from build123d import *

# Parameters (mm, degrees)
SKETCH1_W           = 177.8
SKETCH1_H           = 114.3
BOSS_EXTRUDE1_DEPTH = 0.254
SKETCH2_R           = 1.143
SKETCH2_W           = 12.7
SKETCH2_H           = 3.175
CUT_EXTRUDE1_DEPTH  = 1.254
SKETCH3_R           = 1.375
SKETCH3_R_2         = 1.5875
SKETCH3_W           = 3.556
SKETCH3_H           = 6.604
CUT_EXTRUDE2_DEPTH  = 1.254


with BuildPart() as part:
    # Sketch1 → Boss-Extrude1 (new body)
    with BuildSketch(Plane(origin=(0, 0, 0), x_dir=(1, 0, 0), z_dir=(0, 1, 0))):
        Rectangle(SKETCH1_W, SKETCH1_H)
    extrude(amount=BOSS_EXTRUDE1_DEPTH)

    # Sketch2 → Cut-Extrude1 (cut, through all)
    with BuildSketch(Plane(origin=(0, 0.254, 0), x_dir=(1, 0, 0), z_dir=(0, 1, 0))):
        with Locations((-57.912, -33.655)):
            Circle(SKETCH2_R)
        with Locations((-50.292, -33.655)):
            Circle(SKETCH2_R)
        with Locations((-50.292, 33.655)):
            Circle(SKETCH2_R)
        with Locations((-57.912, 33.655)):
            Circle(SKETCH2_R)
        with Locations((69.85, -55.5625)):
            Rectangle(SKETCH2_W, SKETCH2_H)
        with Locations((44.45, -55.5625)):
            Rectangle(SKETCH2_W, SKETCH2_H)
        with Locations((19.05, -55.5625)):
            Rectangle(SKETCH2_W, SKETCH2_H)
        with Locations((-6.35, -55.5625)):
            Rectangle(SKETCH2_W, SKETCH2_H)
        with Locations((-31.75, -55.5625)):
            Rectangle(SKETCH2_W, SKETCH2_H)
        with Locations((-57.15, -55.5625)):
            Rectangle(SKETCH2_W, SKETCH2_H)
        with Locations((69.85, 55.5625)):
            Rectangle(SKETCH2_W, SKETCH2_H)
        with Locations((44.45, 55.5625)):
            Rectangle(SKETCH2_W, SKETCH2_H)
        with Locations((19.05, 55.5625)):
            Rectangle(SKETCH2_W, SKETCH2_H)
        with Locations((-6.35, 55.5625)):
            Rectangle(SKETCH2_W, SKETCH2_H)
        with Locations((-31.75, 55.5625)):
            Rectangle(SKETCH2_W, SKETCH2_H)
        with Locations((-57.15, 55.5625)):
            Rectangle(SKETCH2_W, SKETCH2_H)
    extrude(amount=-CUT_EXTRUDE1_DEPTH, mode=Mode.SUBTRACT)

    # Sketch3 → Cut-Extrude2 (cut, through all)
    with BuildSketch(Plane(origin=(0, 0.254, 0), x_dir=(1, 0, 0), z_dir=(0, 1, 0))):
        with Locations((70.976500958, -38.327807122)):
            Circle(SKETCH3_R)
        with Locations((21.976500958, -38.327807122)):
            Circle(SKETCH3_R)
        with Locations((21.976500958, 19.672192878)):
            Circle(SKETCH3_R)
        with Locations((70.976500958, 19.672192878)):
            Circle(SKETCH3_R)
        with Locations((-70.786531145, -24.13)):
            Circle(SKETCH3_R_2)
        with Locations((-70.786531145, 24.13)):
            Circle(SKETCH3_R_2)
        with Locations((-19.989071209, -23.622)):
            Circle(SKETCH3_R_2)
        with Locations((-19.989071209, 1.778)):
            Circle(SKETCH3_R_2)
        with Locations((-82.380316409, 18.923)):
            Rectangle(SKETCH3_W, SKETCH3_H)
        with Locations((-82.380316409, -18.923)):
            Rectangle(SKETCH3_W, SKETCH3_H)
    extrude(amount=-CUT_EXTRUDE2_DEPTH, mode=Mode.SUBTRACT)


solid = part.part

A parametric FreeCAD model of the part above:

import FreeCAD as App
import Part
import Sketcher

V = App.Vector
Q = App.Units.Quantity


def add_polygon(sketch, points):
    """Adds a closed chain of lines whose ends are joined by coincident constraints."""
    first, n = sketch.GeometryCount, len(points)
    for a, b in zip(points, points[1:] + points[:1]):
        sketch.addGeometry(Part.LineSegment(App.Vector(*a, 0), App.Vector(*b, 0)), False)
    for i in range(n):
        sketch.addConstraint(Sketcher.Constraint("Coincident", first + i, 2, first + (i + 1) % n, 1))

doc = App.newDocument("Part")
body = doc.addObject("PartDesign::Body", "Body")

sketch1 = doc.addObject("Sketcher::SketchObject", "Sketch")
body.addObject(sketch1)
sketch1.AttachmentSupport = (doc.XZ_Plane, [""])
sketch1.MapMode = "FlatFace"
add_polygon(sketch1, [(-89, -57), (-89, 57), (89, 57), (89, -57)])
sketch1.addConstraint(Sketcher.Constraint("Vertical", 0))
sketch1.addConstraint(Sketcher.Constraint("Horizontal", 1))
sketch1.addConstraint(Sketcher.Constraint("Vertical", 2))
sketch1.addConstraint(Sketcher.Constraint("Horizontal", 3))
sketch1.addConstraint(Sketcher.Constraint("Symmetric", 0, 2, 2, 2, -1, 1))
sketch1.addConstraint(Sketcher.Constraint("DistanceX", 1, 1, 1, 2, Q("7 in")))
sketch1.addConstraint(Sketcher.Constraint("DistanceY", 0, 1, 0, 2, Q("4.5 in")))
pad1 = doc.addObject("PartDesign::Pad", "Pad")
body.addObject(pad1)
pad1.Profile = sketch1
pad1.Length = Q("0.01 in")
pad1.Reversed = True

sketch2 = doc.addObject("Sketcher::SketchObject", "Sketch001")
body.addObject(sketch2)
sketch2.AttachmentSupport = (doc.XZ_Plane, [""])
sketch2.MapMode = "FlatFace"
sketch2.AttachmentOffset = App.Placement(V(0, 0, -0.01 * 25.4), App.Rotation())
sketch2.addGeometry(Part.Circle(V(-57.9, 33.7, 0), V(0, 0, 1), 1.1), False)
sketch2.addGeometry(Part.Circle(V(-50.3, 33.7, 0), V(0, 0, 1), 1.1), False)
sketch2.addGeometry(Part.Circle(V(-50.3, -33.7, 0), V(0, 0, 1), 1.1), False)
sketch2.addGeometry(Part.Circle(V(-57.9, -33.7, 0), V(0, 0, 1), 1.1), False)
add_polygon(sketch2, [(63.5, 54), (63.5, 57.1), (76.2, 57.1), (76.2, 54)])
add_polygon(sketch2, [(38.1, 54), (38.1, 57.1), (50.8, 57.1), (50.8, 54)])
add_polygon(sketch2, [(12.7, 54), (12.7, 57.1), (25.4, 57.1), (25.4, 54)])
add_polygon(sketch2, [(-12.7, 54), (-12.7, 57.1), (0, 57.1), (0, 54)])
add_polygon(sketch2, [(-38.1, 54), (-38.1, 57.1), (-25.4, 57.1), (-25.4, 54)])
add_polygon(sketch2, [(-63.5, 54), (-63.5, 57.1), (-50.8, 57.1), (-50.8, 54)])
add_polygon(sketch2, [(63.5, -57.1), (63.5, -54), (76.2, -54), (76.2, -57.1)])
add_polygon(sketch2, [(38.1, -57.1), (38.1, -54), (50.8, -54), (50.8, -57.1)])
add_polygon(sketch2, [(12.7, -57.1), (12.7, -54), (25.4, -54), (25.4, -57.1)])
add_polygon(sketch2, [(-12.7, -57.1), (-12.7, -54), (0, -54), (0, -57.1)])
add_polygon(sketch2, [(-38.1, -57.1), (-38.1, -54), (-25.4, -54), (-25.4, -57.1)])
add_polygon(sketch2, [(-63.5, -57.1), (-63.5, -54), (-50.8, -54), (-50.8, -57.1)])
sketch2.addConstraint(Sketcher.Constraint("Vertical", 4))
sketch2.addConstraint(Sketcher.Constraint("Horizontal", 5))
sketch2.addConstraint(Sketcher.Constraint("Vertical", 6))
sketch2.addConstraint(Sketcher.Constraint("Horizontal", 7))
sketch2.addConstraint(Sketcher.Constraint("Vertical", 8))
sketch2.addConstraint(Sketcher.Constraint("Horizontal", 9))
sketch2.addConstraint(Sketcher.Constraint("Vertical", 10))
sketch2.addConstraint(Sketcher.Constraint("Horizontal", 11))
sketch2.addConstraint(Sketcher.Constraint("Vertical", 12))
sketch2.addConstraint(Sketcher.Constraint("Horizontal", 13))
sketch2.addConstraint(Sketcher.Constraint("Vertical", 14))
sketch2.addConstraint(Sketcher.Constraint("Horizontal", 15))
sketch2.addConstraint(Sketcher.Constraint("Vertical", 16))
sketch2.addConstraint(Sketcher.Constraint("Horizontal", 17))
sketch2.addConstraint(Sketcher.Constraint("Vertical", 18))
sketch2.addConstraint(Sketcher.Constraint("Horizontal", 19))
sketch2.addConstraint(Sketcher.Constraint("Vertical", 20))
sketch2.addConstraint(Sketcher.Constraint("Horizontal", 21))
sketch2.addConstraint(Sketcher.Constraint("Vertical", 22))
sketch2.addConstraint(Sketcher.Constraint("Horizontal", 23))
sketch2.addConstraint(Sketcher.Constraint("Vertical", 24))
sketch2.addConstraint(Sketcher.Constraint("Horizontal", 25))
sketch2.addConstraint(Sketcher.Constraint("Vertical", 26))
sketch2.addConstraint(Sketcher.Constraint("Horizontal", 27))
sketch2.addConstraint(Sketcher.Constraint("Vertical", 28))
sketch2.addConstraint(Sketcher.Constraint("Horizontal", 29))
sketch2.addConstraint(Sketcher.Constraint("Vertical", 30))
sketch2.addConstraint(Sketcher.Constraint("Horizontal", 31))
sketch2.addConstraint(Sketcher.Constraint("Vertical", 32))
sketch2.addConstraint(Sketcher.Constraint("Horizontal", 33))
sketch2.addConstraint(Sketcher.Constraint("Vertical", 34))
sketch2.addConstraint(Sketcher.Constraint("Horizontal", 35))
sketch2.addConstraint(Sketcher.Constraint("Vertical", 36))
sketch2.addConstraint(Sketcher.Constraint("Horizontal", 37))
sketch2.addConstraint(Sketcher.Constraint("Vertical", 38))
sketch2.addConstraint(Sketcher.Constraint("Horizontal", 39))
sketch2.addConstraint(Sketcher.Constraint("Vertical", 40))
sketch2.addConstraint(Sketcher.Constraint("Horizontal", 41))
sketch2.addConstraint(Sketcher.Constraint("Vertical", 42))
sketch2.addConstraint(Sketcher.Constraint("Horizontal", 43))
sketch2.addConstraint(Sketcher.Constraint("Vertical", 44))
sketch2.addConstraint(Sketcher.Constraint("Horizontal", 45))
sketch2.addConstraint(Sketcher.Constraint("Vertical", 46))
sketch2.addConstraint(Sketcher.Constraint("Horizontal", 47))
sketch2.addConstraint(Sketcher.Constraint("Vertical", 48))
sketch2.addConstraint(Sketcher.Constraint("Horizontal", 49))
sketch2.addConstraint(Sketcher.Constraint("Vertical", 50))
sketch2.addConstraint(Sketcher.Constraint("Horizontal", 51))
sketch2.addConstraint(Sketcher.Constraint("Equal", 0, 1))
sketch2.addConstraint(Sketcher.Constraint("Equal", 1, 2))
sketch2.addConstraint(Sketcher.Constraint("Equal", 2, 3))
sketch2.addConstraint(Sketcher.Constraint("Symmetric", 27, 2, 28, 2, -1, 1))
sketch2.addConstraint(Sketcher.Constraint("Symmetric", 23, 2, 32, 2, -1, 1))
sketch2.addConstraint(Sketcher.Constraint("Symmetric", 26, 2, 33, 2, -1, 1))
sketch2.addConstraint(Sketcher.Constraint("Symmetric", 19, 2, 36, 2, -1, 1))
sketch2.addConstraint(Sketcher.Constraint("Symmetric", 22, 2, 37, 2, -1, 1))
sketch2.addConstraint(Sketcher.Constraint("Symmetric", 15, 2, 40, 2, -1, 1))
sketch2.addConstraint(Sketcher.Constraint("Symmetric", 18, 2, 41, 2, -1, 1))
sketch2.addConstraint(Sketcher.Constraint("Symmetric", 11, 2, 44, 2, -1, 1))
sketch2.addConstraint(Sketcher.Constraint("Symmetric", 14, 2, 45, 2, -1, 1))
sketch2.addConstraint(Sketcher.Constraint("Symmetric", 7, 2, 48, 2, -1, 1))
sketch2.addConstraint(Sketcher.Constraint("Symmetric", 10, 2, 49, 2, -1, 1))
sketch2.addConstraint(Sketcher.Constraint("Symmetric", 12, 2, 16, 2, -2))
sketch2.addConstraint(Sketcher.Constraint("Symmetric", 8, 2, 20, 2, -2))
sketch2.addConstraint(Sketcher.Constraint("Symmetric", 13, 2, 21, 2, -2))
sketch2.addConstraint(Sketcher.Constraint("Symmetric", 4, 2, 24, 2, -2))
sketch2.addConstraint(Sketcher.Constraint("Symmetric", 9, 2, 25, 2, -2))
sketch2.addConstraint(Sketcher.Constraint("Symmetric", 1, 3, 2, 3, -1))
sketch2.addConstraint(Sketcher.Constraint("Symmetric", 0, 3, 3, 3, -1))
sketch2.addConstraint(Sketcher.Constraint("Symmetric", 5, 2, 30, 2, -1))
sketch2.addConstraint(Sketcher.Constraint("Symmetric", 17, 2, 42, 2, -1))
sketch2.addConstraint(Sketcher.Constraint("Horizontal", 0, 3, 1, 3))
sketch2.addConstraint(Sketcher.Constraint("Horizontal", 31, 2, 34, 2))
sketch2.addConstraint(Sketcher.Constraint("Horizontal", 35, 2, 38, 2))
sketch2.addConstraint(Sketcher.Constraint("Horizontal", 43, 2, 46, 2))
sketch2.addConstraint(Sketcher.Constraint("Horizontal", 47, 2, 50, 2))
sketch2.addConstraint(Sketcher.Constraint("Equal", 7, 9))
sketch2.addConstraint(Sketcher.Constraint("Equal", 11, 13))
sketch2.addConstraint(Sketcher.Constraint("Equal", 15, 17))
sketch2.addConstraint(Sketcher.Constraint("Equal", 19, 21))
sketch2.addConstraint(Sketcher.Constraint("Equal", 23, 25))
sketch2.addConstraint(Sketcher.Constraint("Diameter", 0, Q("0.09 in")))
sketch2.addConstraint(Sketcher.Constraint("DistanceX", 5, 1, 5, 2, Q("0.5 in")))
sketch2.addConstraint(Sketcher.Constraint("DistanceX", 0, 3, 1, 3, Q("0.3 in")))
sketch2.addConstraint(Sketcher.Constraint("DistanceY", 1, 3, 6, 2, Q("0.8 in")))
sketch2.addConstraint(Sketcher.Constraint("DistanceY", 4, 1, 4, 2, Q("0.125 in")))
sketch2.addConstraint(Sketcher.Constraint("DistanceX", 0, 3, -1, 1, Q("2.28 in")))
sketch2.addConstraint(Sketcher.Constraint("DistanceY", -1, 1, 4, 2, Q("2.25 in")))
pocket1 = doc.addObject("PartDesign::Pocket", "Pocket")
body.addObject(pocket1)
pocket1.Profile = sketch2
pocket1.Type = "ThroughAll"
pocket1.Reversed = True

sketch3 = doc.addObject("Sketcher::SketchObject", "Sketch002")
body.addObject(sketch3)
sketch3.AttachmentSupport = (doc.XZ_Plane, [""])
sketch3.MapMode = "FlatFace"
sketch3.AttachmentOffset = App.Placement(V(0, 0, -0.01 * 25.4), App.Rotation())
sketch3.addGeometry(Part.Circle(V(71, 38.3, 0), V(0, 0, 1), 1.4), False)
sketch3.addGeometry(Part.Circle(V(22, 38.3, 0), V(0, 0, 1), 1.4), False)
sketch3.addGeometry(Part.Circle(V(22, -19.7, 0), V(0, 0, 1), 1.4), False)
sketch3.addGeometry(Part.Circle(V(71, -19.7, 0), V(0, 0, 1), 1.4), False)
sketch3.addGeometry(Part.Circle(V(-70.8, 24.1, 0), V(0, 0, 1), 1.6), False)
sketch3.addGeometry(Part.Circle(V(-70.8, -24.1, 0), V(0, 0, 1), 1.6), False)
sketch3.addGeometry(Part.Circle(V(-20, 23.6, 0), V(0, 0, 1), 1.6), False)
sketch3.addGeometry(Part.Circle(V(-20, -1.8, 0), V(0, 0, 1), 1.6), False)
add_polygon(sketch3, [(-84.2, -22.2), (-84.2, -15.6), (-80.6, -15.6), (-80.6, -22.2)])
add_polygon(sketch3, [(-84.2, 15.6), (-84.2, 22.2), (-80.6, 22.2), (-80.6, 15.6)])
sketch3.addConstraint(Sketcher.Constraint("Vertical", 8))
sketch3.addConstraint(Sketcher.Constraint("Horizontal", 9))
sketch3.addConstraint(Sketcher.Constraint("Vertical", 10))
sketch3.addConstraint(Sketcher.Constraint("Horizontal", 11))
sketch3.addConstraint(Sketcher.Constraint("Vertical", 12))
sketch3.addConstraint(Sketcher.Constraint("Horizontal", 13))
sketch3.addConstraint(Sketcher.Constraint("Vertical", 14))
sketch3.addConstraint(Sketcher.Constraint("Horizontal", 15))
sketch3.addConstraint(Sketcher.Constraint("Equal", 0, 1))
sketch3.addConstraint(Sketcher.Constraint("Equal", 1, 2))
sketch3.addConstraint(Sketcher.Constraint("Equal", 2, 3))
sketch3.addConstraint(Sketcher.Constraint("Equal", 4, 5))
sketch3.addConstraint(Sketcher.Constraint("Equal", 5, 6))
sketch3.addConstraint(Sketcher.Constraint("Equal", 6, 7))
sketch3.addConstraint(Sketcher.Constraint("Symmetric", 4, 3, 5, 3, -1))
sketch3.addConstraint(Sketcher.Constraint("Symmetric", 11, 2, 12, 2, -1))
sketch3.addConstraint(Sketcher.Constraint("Symmetric", 9, 2, 14, 2, -1))
sketch3.addConstraint(Sketcher.Constraint("Horizontal", 0, 3, 1, 3))
sketch3.addConstraint(Sketcher.Constraint("Horizontal", 2, 3, 3, 3))
sketch3.addConstraint(Sketcher.Constraint("Vertical", 1, 3, 2, 3))
sketch3.addConstraint(Sketcher.Constraint("Vertical", 0, 3, 3, 3))
sketch3.addConstraint(Sketcher.Constraint("Vertical", 6, 3, 7, 3))
sketch3.addConstraint(Sketcher.Constraint("Diameter", 4, Q("0.125 in")))
sketch3.addConstraint(Sketcher.Constraint("DistanceY", 7, 3, 6, 3, Q("1 in")))
sketch3.addConstraint(Sketcher.Constraint("DistanceX", 9, 1, 9, 2, Q("0.14 in")))
sketch3.addConstraint(Sketcher.Constraint("DistanceY", 8, 1, 8, 2, Q("0.26 in")))
sketch3.addConstraint(Sketcher.Constraint("DistanceY", 5, 3, 4, 3, Q("1.9 in")))
sketch3.addConstraint(Sketcher.Constraint("Diameter", 0, 2.75))
sketch3.addConstraint(Sketcher.Constraint("DistanceY", -1, 1, 6, 3, Q("0.93 in")))
sketch3.addConstraint(Sketcher.Constraint("DistanceY", 8, 2, 12, 2, Q("1.49 in")))
sketch3.addConstraint(Sketcher.Constraint("DistanceX", 4, 3, 6, 3, Q("1.9999 in")))
sketch3.addConstraint(Sketcher.Constraint("DistanceX", -1, 1, 0, 3, 70.976501))
sketch3.addConstraint(Sketcher.Constraint("DistanceX", -1, 1, 1, 3, 21.976501))
sketch3.addConstraint(Sketcher.Constraint("DistanceY", 2, 3, 1, 3, 58.0))
sketch3.addConstraint(Sketcher.Constraint("DistanceX", 4, 3, -1, 1, 70.786531))
sketch3.addConstraint(Sketcher.Constraint("DistanceY", -1, 1, 0, 3, 38.327807))
sketch3.addConstraint(Sketcher.Constraint("DistanceX", 8, 2, -1, 1, 84.158316))
pocket2 = doc.addObject("PartDesign::Pocket", "Pocket001")
body.addObject(pocket2)
pocket2.Profile = sketch3
pocket2.Type = "ThroughAll"
pocket2.Reversed = True

doc.recompute()
